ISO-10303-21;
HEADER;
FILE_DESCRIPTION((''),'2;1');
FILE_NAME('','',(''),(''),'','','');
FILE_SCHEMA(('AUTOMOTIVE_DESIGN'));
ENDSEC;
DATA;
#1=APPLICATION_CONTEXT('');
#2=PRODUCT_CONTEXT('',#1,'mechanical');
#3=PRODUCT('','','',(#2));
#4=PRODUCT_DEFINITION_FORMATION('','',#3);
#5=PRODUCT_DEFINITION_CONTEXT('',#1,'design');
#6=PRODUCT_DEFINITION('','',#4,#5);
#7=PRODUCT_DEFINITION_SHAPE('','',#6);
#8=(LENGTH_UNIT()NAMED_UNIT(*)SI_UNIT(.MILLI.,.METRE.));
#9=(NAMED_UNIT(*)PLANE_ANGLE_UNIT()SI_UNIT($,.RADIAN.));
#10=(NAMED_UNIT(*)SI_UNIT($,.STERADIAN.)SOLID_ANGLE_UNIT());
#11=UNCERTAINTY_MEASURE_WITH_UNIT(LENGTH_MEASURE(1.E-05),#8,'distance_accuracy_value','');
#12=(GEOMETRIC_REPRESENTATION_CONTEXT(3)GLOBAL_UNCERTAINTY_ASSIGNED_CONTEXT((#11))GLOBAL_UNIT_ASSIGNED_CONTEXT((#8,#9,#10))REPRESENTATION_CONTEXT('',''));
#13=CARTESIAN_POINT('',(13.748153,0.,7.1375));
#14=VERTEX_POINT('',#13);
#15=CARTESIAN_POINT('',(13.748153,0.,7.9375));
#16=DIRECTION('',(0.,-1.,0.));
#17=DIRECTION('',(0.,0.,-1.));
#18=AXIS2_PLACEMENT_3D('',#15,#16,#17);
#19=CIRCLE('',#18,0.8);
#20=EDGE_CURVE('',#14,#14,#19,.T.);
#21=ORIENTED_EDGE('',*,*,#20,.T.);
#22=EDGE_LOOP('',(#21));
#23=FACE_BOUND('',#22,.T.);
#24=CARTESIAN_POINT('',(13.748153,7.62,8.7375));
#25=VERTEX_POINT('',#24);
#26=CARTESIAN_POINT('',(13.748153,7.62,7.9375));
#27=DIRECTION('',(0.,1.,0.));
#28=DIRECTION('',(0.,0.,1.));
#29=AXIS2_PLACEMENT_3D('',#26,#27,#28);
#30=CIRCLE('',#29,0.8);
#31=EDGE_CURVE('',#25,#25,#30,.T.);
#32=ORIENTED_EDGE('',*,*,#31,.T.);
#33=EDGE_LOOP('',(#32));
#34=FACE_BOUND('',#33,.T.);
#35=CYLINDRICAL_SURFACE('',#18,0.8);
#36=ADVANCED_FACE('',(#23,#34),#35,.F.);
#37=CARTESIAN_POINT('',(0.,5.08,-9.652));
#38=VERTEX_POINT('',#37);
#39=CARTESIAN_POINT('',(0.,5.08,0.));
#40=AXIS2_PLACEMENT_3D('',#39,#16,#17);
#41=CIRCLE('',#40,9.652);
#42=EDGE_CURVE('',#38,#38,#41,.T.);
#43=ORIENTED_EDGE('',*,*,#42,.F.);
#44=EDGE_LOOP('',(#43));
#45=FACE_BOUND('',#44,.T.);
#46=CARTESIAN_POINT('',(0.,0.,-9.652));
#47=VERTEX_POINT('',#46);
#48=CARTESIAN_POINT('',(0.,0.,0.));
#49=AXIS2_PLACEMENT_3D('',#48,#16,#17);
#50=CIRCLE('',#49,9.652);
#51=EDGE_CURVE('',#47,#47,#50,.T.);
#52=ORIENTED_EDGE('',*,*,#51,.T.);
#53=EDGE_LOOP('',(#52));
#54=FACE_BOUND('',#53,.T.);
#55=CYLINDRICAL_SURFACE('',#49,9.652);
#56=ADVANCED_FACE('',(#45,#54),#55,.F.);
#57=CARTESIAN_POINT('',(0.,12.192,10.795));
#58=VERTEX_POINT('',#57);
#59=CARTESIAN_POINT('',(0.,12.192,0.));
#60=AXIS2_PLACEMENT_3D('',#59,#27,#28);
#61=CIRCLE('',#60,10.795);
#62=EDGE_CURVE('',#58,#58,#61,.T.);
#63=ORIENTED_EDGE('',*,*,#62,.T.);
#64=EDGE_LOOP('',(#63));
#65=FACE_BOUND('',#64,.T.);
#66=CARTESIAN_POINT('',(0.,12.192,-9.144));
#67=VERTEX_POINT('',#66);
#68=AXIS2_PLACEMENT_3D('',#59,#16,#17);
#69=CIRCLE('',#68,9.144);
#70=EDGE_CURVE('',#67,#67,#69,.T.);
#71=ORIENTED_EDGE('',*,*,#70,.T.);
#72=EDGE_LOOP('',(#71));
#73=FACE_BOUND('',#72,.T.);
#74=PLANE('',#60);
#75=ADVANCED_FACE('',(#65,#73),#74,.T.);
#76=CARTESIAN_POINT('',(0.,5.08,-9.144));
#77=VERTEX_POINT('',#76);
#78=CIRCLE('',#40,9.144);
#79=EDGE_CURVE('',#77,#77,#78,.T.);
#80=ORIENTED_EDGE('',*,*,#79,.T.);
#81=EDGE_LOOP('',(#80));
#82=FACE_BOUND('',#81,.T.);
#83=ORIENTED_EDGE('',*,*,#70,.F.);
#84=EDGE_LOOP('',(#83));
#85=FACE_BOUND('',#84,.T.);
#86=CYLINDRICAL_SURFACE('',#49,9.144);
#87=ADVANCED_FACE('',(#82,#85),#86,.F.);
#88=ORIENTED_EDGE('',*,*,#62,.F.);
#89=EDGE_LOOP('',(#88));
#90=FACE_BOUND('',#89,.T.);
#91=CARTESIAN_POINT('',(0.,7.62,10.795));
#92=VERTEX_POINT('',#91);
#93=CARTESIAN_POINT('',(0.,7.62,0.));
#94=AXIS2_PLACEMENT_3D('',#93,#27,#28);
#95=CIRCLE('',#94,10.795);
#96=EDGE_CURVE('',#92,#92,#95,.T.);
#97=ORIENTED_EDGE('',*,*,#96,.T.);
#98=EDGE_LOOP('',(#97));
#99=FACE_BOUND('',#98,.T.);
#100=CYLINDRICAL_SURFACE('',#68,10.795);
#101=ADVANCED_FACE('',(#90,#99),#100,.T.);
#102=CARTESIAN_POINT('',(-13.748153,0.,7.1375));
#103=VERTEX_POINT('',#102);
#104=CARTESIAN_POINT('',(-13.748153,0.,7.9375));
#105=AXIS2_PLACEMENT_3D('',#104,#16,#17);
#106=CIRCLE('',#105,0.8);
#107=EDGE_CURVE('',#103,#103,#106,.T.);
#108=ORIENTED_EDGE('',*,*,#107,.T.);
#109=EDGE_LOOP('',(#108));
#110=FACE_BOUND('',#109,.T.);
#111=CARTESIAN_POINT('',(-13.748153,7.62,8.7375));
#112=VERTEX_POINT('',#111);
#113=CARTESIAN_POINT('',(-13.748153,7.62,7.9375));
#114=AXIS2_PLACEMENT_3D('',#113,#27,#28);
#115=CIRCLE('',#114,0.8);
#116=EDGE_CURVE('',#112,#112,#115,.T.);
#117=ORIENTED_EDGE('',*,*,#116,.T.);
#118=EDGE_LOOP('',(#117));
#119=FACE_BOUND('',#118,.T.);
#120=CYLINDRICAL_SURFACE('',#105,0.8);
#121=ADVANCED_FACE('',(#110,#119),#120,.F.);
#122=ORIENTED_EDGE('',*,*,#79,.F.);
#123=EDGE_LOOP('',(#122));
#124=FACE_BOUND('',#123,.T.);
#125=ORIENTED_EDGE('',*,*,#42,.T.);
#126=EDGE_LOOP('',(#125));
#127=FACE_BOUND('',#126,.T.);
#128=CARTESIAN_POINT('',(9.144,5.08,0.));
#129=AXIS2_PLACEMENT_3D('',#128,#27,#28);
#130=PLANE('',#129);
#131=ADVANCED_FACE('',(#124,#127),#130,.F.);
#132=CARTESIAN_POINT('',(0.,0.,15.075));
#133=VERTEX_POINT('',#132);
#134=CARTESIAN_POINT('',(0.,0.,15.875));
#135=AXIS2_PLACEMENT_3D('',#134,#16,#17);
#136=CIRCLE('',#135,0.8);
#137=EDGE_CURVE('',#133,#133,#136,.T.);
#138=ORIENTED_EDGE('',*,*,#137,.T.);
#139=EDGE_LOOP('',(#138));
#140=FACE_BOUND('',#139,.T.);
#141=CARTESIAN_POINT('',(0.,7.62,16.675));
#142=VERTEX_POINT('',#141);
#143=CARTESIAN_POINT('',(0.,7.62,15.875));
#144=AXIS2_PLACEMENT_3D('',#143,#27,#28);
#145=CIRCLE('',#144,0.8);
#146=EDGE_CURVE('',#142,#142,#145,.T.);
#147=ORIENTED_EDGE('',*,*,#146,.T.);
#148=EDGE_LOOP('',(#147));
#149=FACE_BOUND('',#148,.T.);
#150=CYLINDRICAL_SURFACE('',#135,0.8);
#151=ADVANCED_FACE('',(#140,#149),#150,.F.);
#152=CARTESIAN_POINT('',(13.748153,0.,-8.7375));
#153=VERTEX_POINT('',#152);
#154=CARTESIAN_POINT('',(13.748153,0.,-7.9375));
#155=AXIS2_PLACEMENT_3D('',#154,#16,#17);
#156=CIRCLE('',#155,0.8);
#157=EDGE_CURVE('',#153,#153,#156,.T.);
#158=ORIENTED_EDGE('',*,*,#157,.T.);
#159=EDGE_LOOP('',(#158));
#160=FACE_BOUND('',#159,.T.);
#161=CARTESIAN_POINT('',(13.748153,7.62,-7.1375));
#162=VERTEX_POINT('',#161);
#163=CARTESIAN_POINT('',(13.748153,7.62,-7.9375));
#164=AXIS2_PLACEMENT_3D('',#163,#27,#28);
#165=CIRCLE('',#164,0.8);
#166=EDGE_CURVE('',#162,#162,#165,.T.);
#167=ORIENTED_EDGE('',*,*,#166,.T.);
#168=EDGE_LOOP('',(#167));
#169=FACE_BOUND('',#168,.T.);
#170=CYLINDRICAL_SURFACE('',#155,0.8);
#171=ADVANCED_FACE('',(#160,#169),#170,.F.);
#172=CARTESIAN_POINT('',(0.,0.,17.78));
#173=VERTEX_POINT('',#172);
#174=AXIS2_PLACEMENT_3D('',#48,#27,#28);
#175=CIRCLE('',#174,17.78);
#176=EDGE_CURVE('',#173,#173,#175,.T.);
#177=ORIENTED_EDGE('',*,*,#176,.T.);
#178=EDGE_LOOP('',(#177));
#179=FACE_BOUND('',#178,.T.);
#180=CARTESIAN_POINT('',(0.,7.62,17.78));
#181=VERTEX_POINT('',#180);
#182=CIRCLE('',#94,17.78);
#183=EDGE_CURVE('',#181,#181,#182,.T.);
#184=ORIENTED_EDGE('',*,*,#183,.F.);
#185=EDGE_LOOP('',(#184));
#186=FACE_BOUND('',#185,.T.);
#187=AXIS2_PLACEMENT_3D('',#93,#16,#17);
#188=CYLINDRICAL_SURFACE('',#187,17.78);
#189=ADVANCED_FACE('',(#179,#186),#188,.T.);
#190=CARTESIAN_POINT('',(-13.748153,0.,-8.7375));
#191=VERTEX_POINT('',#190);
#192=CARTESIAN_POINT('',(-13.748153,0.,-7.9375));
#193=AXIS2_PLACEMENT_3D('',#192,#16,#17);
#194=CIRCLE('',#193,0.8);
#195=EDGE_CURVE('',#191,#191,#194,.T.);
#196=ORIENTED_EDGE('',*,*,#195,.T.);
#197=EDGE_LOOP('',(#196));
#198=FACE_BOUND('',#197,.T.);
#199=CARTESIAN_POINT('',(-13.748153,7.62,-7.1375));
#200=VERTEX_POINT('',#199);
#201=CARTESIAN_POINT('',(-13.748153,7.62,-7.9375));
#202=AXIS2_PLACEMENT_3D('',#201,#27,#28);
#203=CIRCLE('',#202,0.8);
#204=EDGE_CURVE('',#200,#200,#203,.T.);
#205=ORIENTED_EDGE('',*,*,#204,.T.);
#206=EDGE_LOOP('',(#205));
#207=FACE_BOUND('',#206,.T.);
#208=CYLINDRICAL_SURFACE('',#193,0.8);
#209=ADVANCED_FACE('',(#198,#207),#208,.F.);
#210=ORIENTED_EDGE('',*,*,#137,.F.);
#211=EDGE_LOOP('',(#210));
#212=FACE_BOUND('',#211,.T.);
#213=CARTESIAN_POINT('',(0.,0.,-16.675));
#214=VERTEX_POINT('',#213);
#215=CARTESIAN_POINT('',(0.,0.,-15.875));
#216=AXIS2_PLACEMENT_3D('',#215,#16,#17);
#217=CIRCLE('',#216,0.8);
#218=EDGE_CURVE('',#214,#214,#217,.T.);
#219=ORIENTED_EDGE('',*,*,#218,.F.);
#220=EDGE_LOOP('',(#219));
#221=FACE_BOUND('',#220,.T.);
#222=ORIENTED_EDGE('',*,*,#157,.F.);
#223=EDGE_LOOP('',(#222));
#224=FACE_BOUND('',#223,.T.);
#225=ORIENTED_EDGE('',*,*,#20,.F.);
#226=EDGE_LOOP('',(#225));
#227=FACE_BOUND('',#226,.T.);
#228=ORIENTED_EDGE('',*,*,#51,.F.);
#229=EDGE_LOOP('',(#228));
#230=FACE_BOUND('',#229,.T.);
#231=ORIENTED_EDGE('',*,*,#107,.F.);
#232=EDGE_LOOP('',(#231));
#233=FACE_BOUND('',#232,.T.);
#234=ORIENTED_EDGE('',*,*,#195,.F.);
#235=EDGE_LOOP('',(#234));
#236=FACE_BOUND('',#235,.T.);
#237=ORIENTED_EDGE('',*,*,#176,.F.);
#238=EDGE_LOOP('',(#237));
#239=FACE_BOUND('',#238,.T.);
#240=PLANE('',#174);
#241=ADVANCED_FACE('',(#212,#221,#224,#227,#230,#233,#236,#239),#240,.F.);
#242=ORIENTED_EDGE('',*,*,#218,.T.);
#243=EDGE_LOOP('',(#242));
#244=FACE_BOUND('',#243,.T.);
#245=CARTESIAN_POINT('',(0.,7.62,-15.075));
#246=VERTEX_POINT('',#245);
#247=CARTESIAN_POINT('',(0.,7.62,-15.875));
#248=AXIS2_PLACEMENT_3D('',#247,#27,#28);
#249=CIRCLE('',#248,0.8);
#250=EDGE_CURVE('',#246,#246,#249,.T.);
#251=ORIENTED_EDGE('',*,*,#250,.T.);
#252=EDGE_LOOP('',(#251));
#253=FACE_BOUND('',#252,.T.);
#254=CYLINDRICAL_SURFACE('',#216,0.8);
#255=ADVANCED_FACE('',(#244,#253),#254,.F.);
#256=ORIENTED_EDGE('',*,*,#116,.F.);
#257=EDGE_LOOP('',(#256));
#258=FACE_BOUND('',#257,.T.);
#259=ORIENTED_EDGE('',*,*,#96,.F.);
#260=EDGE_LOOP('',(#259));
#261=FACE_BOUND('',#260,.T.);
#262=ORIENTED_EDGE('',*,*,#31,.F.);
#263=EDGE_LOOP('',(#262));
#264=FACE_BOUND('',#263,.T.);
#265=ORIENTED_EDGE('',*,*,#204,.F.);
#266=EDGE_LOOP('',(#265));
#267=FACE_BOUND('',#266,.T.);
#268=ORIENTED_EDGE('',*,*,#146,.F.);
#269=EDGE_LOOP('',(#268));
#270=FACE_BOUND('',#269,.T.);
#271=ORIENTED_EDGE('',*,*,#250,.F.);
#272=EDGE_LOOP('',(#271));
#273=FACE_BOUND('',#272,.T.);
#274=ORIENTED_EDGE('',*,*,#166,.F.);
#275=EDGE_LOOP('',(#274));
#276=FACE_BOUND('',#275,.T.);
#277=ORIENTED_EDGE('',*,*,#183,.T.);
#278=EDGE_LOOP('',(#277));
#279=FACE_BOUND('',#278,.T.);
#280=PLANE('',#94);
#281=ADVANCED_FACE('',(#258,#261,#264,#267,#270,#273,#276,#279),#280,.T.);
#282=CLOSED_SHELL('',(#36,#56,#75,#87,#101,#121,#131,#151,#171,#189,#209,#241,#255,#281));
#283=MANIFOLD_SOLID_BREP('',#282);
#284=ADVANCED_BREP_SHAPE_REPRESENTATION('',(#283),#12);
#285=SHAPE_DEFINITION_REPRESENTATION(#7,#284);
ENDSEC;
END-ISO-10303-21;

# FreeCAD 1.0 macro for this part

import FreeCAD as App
import Part
import Sketcher
Q = App.Units.Quantity

doc = App.newDocument("Part")
body = doc.addObject("PartDesign::Body", "Body")

sketch1 = body.newObject("Sketcher::SketchObject", "Sketch")
sketch1.AttachmentSupport = (doc.getObject("XZ_Plane"), [""])
sketch1.MapMode = "FlatFace"
sketch1.addGeometry(Part.Circle(App.Vector(0, 0, 0), App.Vector(0, 0, 1), 18), False)
sketch1.addConstraint([
    Sketcher.Constraint("Coincident", 0, 3, -1, 1),
    Sketcher.Constraint("Diameter", 0, Q("1.4 in")),
])
pad1 = body.newObject("PartDesign::Pad", "Pad")
pad1.Profile = sketch1
pad1.Length = Q("0.3 in")
pad1.Reversed = True

sketch2 = body.newObject("Sketcher::SketchObject", "Sketch001")
sketch2.AttachmentSupport = (doc.getObject("XZ_Plane"), [""])
sketch2.MapMode = "FlatFace"
sketch2.AttachmentOffset = App.Placement(App.Vector(0, 0, -0.3 * 25.4), App.Rotation())
sketch2.addGeometry(Part.Circle(App.Vector(0, 0, 0), App.Vector(0, 0, 1), 11), False)
sketch2.addConstraint([
    Sketcher.Constraint("Coincident", 0, 3, -1, 1),
    Sketcher.Constraint("Diameter", 0, Q("0.85 in")),
])
pad2 = body.newObject("PartDesign::Pad", "Pad001")
pad2.Profile = sketch2
pad2.Length = Q("0.18 in")
pad2.Reversed = True

sketch3 = body.newObject("Sketcher::SketchObject", "Sketch002")
sketch3.AttachmentSupport = (doc.getObject("XZ_Plane"), [""])
sketch3.MapMode = "FlatFace"
sketch3.addGeometry([
    Part.Circle(App.Vector(0, -15.9, 0), App.Vector(0, 0, 1), 0.8),
    Part.Circle(App.Vector(-13.7, -7.9, 0), App.Vector(0, 0, 1), 0.8),
    Part.Circle(App.Vector(-13.7, 7.9, 0), App.Vector(0, 0, 1), 0.8),
    Part.Circle(App.Vector(0, 15.9, 0), App.Vector(0, 0, 1), 0.8),
    Part.Circle(App.Vector(13.7, 7.9, 0), App.Vector(0, 0, 1), 0.8),
    Part.Circle(App.Vector(13.7, -7.9, 0), App.Vector(0, 0, 1), 0.8),
], False)
sketch3.addConstraint([
    Sketcher.Constraint("Equal", 0, 1),
    Sketcher.Constraint("Equal", 1, 2),
    Sketcher.Constraint("Equal", 2, 3),
    Sketcher.Constraint("Equal", 3, 4),
    Sketcher.Constraint("Equal", 4, 5),
    Sketcher.Constraint("Symmetric", 0, 3, 3, 3, -1, 1),
    Sketcher.Constraint("Symmetric", 1, 3, 4, 3, -1, 1),
    Sketcher.Constraint("Symmetric", 2, 3, 5, 3, -1, 1),
    Sketcher.Constraint("Symmetric", 2, 3, 4, 3, -2),
    Sketcher.Constraint("PointOnObject", 0, 3, -2),
    Sketcher.Constraint("Diameter", 0, Q("1.6 mm")),
    Sketcher.Constraint("DistanceY", 0, 3, 3, 3, Q("1.25 in")),
    Sketcher.Constraint("DistanceY", 1, 3, -1, 1, Q("0.3125 in")),
    Sketcher.Constraint("DistanceX", 1, 3, -1, 1, Q("13.748153 mm")),
])
doc.recompute()
hole = body.newObject("PartDesign::Hole", "Hole")
hole.Profile = sketch3
hole.ThreadType = "None"
hole.Diameter = 1.6
hole.DepthType = "ThroughAll"

sketch4 = body.newObject("Sketcher::SketchObject", "Sketch003")
sketch4.AttachmentSupport = (doc.getObject("XZ_Plane"), [""])
sketch4.MapMode = "FlatFace"
sketch4.addGeometry(Part.Circle(App.Vector(0, 0, 0), App.Vector(0, 0, 1), 9), False)
sketch4.addConstraint([
    Sketcher.Constraint("Coincident", 0, 3, -1, 1),
    Sketcher.Constraint("Diameter", 0, Q("0.72 in")),
])
doc.recompute()
hole2 = body.newObject("PartDesign::Hole", "Hole001")
hole2.Profile = sketch4
hole2.ThreadType = "None"
hole2.Diameter = Q("0.72 in")
hole2.DepthType = "ThroughAll"
hole2.HoleCutType = "Counterbore"
hole2.HoleCutDiameter = Q("0.76 in")
hole2.HoleCutDepth = Q("0.2 in")

doc.recompute()
